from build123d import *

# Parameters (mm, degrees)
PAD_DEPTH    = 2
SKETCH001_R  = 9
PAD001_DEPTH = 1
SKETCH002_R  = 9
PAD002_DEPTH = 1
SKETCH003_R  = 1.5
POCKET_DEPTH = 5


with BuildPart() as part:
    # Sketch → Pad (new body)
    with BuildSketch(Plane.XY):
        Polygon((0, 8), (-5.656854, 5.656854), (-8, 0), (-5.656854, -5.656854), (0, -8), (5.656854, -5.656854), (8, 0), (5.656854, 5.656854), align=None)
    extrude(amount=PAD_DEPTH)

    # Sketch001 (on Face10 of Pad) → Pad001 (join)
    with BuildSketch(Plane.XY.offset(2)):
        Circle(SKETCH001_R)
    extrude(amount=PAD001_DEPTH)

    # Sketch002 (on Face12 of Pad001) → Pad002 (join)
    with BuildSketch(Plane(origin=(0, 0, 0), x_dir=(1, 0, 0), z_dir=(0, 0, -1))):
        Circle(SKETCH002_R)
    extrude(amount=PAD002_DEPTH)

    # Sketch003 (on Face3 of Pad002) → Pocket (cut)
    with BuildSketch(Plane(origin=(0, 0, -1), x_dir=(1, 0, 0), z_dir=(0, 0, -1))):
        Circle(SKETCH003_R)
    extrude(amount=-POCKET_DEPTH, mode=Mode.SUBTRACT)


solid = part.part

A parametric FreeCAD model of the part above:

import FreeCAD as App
import Part
import Sketcher
Q = App.Units.Quantity


def add_polygon(sketch, points):
    """Adds a closed chain of lines whose ends are joined by coincident constraints."""
    first, n = sketch.GeometryCount, len(points)
    for a, b in zip(points, points[1:] + points[:1]):
        sketch.addGeometry(Part.LineSegment(App.Vector(*a, 0), App.Vector(*b, 0)), False)
    for i in range(n):
        sketch.addConstraint(Sketcher.Constraint("Coincident", first + i, 2, first + (i + 1) % n, 1))

doc = App.newDocument("Part")
body = doc.addObject("PartDesign::Body", "Body")

sketch1 = body.newObject("Sketcher::SketchObject", "Sketch")
sketch1.AttachmentSupport = (doc.getObject("XY_Plane"), [""])
sketch1.MapMode = "FlatFace"
add_polygon(sketch1, [(0, 8), (-5.656854, 5.656854), (-8, 0), (-5.656854, -5.656854), (0, -8), (5.656854, -5.656854), (8, 0), (5.656854, 5.656854)])
sketch1.addConstraint(Sketcher.Constraint("Symmetric", 0, 2, 4, 2, -1, 1))
sketch1.addConstraint(Sketcher.Constraint("Symmetric", 1, 2, 5, 2, -1, 1))
sketch1.addConstraint(Sketcher.Constraint("Symmetric", 2, 2, 6, 2, -1, 1))
sketch1.addConstraint(Sketcher.Constraint("Symmetric", 3, 2, 7, 2, -1, 1))
sketch1.addConstraint(Sketcher.Constraint("Symmetric", 2, 2, 4, 2, -2))
sketch1.addConstraint(Sketcher.Constraint("PointOnObject", 1, 2, -1))
sketch1.addConstraint(Sketcher.Constraint("PointOnObject", 3, 2, -2))
sketch1.addConstraint(Sketcher.Constraint("Perpendicular", 0, 2))
sketch1.addConstraint(Sketcher.Constraint("Equal", 0, 1))
sketch1.addConstraint(Sketcher.Constraint("DistanceX", 1, 2, -1, 1, 8.0))
sketch1.addConstraint(Sketcher.Constraint("Angle", 0, Q("-157.499997 deg")))
pad1 = body.newObject("PartDesign::Pad", "Pad")
pad1.Profile = sketch1
pad1.Length = 2

sketch2 = body.newObject("Sketcher::SketchObject", "Sketch001")
sketch2.AttachmentSupport = (doc.getObject("XY_Plane"), [""])
sketch2.MapMode = "FlatFace"
sketch2.AttachmentOffset = App.Placement(App.Vector(0, 0, 2), App.Rotation())
sketch2.addGeometry(Part.Circle(App.Vector(0, 0, 0), App.Vector(0, 0, 1), 9), False)
sketch2.addConstraint(Sketcher.Constraint("Coincident", 0, 3, -1, 1))
sketch2.addConstraint(Sketcher.Constraint("Diameter", 0, 18.0))
pad2 = body.newObject("PartDesign::Pad", "Pad001")
pad2.Profile = sketch2
pad2.Length = 1

sketch3 = body.newObject("Sketcher::SketchObject", "Sketch002")
sketch3.AttachmentSupport = (doc.getObject("XY_Plane"), [""])
sketch3.MapMode = "FlatFace"
sketch3.addGeometry(Part.Circle(App.Vector(0, 0, 0), App.Vector(0, 0, 1), 9), False)
sketch3.addConstraint(Sketcher.Constraint("Coincident", 0, 3, -1, 1))
sketch3.addConstraint(Sketcher.Constraint("Diameter", 0, 18.0))
pad3 = body.newObject("PartDesign::Pad", "Pad002")
pad3.Profile = sketch3
pad3.Length = 1
pad3.Reversed = True

sketch4 = body.newObject("Sketcher::SketchObject", "Sketch003")
sketch4.AttachmentSupport = (doc.getObject("XY_Plane"), [""])
sketch4.MapMode = "FlatFace"
sketch4.AttachmentOffset = App.Placement(App.Vector(0, 0, -1), App.Rotation())
sketch4.addGeometry(Part.Circle(App.Vector(0, 0, 0), App.Vector(0, 0, 1), 1.5), False)
sketch4.addConstraint(Sketcher.Constraint("Coincident", 0, 3, -1, 1))
sketch4.addConstraint(Sketcher.Constraint("Diameter", 0, 3.0))
pocket1 = body.newObject("PartDesign::Pocket", "Pocket")
pocket1.Profile = sketch4
pocket1.Length = 5
pocket1.Reversed = True

doc.recompute()
